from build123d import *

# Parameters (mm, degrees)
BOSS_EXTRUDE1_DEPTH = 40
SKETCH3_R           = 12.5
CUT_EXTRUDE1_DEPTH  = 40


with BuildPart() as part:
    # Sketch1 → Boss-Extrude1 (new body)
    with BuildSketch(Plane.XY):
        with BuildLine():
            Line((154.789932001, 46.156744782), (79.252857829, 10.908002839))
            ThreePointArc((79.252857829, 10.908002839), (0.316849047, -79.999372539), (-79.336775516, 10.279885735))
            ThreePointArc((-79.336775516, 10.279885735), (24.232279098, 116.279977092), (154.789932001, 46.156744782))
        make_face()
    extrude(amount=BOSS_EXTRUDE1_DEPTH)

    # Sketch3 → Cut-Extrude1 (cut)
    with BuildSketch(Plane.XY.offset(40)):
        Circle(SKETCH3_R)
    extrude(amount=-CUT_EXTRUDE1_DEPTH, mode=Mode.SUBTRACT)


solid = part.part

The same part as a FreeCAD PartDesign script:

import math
import FreeCAD as App
import Part
import Sketcher
from FreeCAD import Vector

doc = App.newDocument("Part")
body = doc.addObject("PartDesign::Body", "Body")

# Sketch on XY plane
sketch1 = body.newObject("Sketcher::SketchObject", "Sketch")
sketch1.AttachmentSupport = (doc.getObject("XY_Plane"), [""])
sketch1.MapMode = "FlatFace"
sketch1.addGeometry([
    Part.LineSegment(Vector(79, 11, 0), Vector(155, 46, 0)),
    Part.ArcOfCircle(Part.Circle(Vector(43, -6, 0), Vector(0, 0, 1), 123), math.radians(25), math.radians(173)),
    Part.ArcOfCircle(Part.Circle(Vector(0, 0, 0), Vector(0, 0, 1), 80), math.radians(173), math.radians(368)),
], False)
sketch1.addConstraint([
    Sketcher.Constraint("Coincident", 0, 2, 1, 1),
    Sketcher.Constraint("Tangent", 1, 2, 2, 1),
    Sketcher.Constraint("Coincident", 2, 2, 0, 1),
    Sketcher.Constraint("Coincident", 2, 3, -1, 1),
    Sketcher.Constraint("Radius", 2, 80.0),
    Sketcher.Constraint("Radius", 1, 123.261158),
    Sketcher.Constraint("DistanceY", 1, 3, 2, 2, 16.467),
    Sketcher.Constraint("DistanceX", -1, 1, 1, 3, 42.90251),
    Sketcher.Constraint("DistanceX", 1, 3, 0, 2, 111.887422),
])
pad1 = body.newObject("PartDesign::Pad", "Pad")
pad1.Profile = sketch1
pad1.Length = 40

# Sketch on XY plane
sketch2 = body.newObject("Sketcher::SketchObject", "Sketch001")
sketch2.AttachmentSupport = (doc.getObject("XY_Plane"), [""])
sketch2.MapMode = "FlatFace"
sketch2.AttachmentOffset = App.Placement(Vector(0, 0, 40), App.Rotation())
sketch2.addGeometry(Part.Circle(Vector(0, 0, 0), Vector(0, 0, 1), 12), False)
sketch2.addConstraint([
    Sketcher.Constraint("Coincident", 0, 3, -1, 1),
    Sketcher.Constraint("Diameter", 0, 25.0),
])
pocket1 = body.newObject("PartDesign::Pocket", "Pocket")
pocket1.Profile = sketch2
pocket1.Length = 40

doc.recompute()
